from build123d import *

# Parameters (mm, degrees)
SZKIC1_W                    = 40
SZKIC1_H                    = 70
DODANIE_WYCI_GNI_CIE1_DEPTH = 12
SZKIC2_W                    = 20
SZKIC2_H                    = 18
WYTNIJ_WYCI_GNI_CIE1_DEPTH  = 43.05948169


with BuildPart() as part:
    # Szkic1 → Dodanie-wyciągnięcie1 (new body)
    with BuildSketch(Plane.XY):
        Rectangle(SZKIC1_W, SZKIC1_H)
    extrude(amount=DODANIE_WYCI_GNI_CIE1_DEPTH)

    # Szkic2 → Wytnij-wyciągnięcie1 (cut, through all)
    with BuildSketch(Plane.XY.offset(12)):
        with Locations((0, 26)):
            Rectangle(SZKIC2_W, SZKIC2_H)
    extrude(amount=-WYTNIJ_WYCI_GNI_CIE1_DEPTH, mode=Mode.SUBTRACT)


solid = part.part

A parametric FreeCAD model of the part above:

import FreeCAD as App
import Part
import Sketcher

V = App.Vector


def add_polygon(sketch, points):
    """Adds a closed chain of lines whose ends are joined by coincident constraints."""
    first, n = sketch.GeometryCount, len(points)
    for a, b in zip(points, points[1:] + points[:1]):
        sketch.addGeometry(Part.LineSegment(App.Vector(*a, 0), App.Vector(*b, 0)), False)
    for i in range(n):
        sketch.addConstraint(Sketcher.Constraint("Coincident", first + i, 2, first + (i + 1) % n, 1))

doc = App.newDocument("Part")
body = doc.addObject("PartDesign::Body", "Body")

# Sketch on XY plane
sketch1 = body.newObject("Sketcher::SketchObject", "Sketch")
sketch1.AttachmentSupport = (doc.getObject("XY_Plane"), [""])
sketch1.MapMode = "FlatFace"
add_polygon(sketch1, [(-20, 35), (-20, -35), (20, -35), (20, 35)])  # lines 0-3
sketch1.addConstraint([
    Sketcher.Constraint("Vertical", 0),
    Sketcher.Constraint("Horizontal", 1),
    Sketcher.Constraint("Vertical", 2),
    Sketcher.Constraint("Horizontal", 3),
    Sketcher.Constraint("Symmetric", 0, 2, 2, 2, -1, 1),
    Sketcher.Constraint("DistanceX", 1, 1, 1, 2, 40.0),
    Sketcher.Constraint("DistanceY", 0, 2, 0, 1, 70.0),
])
pad1 = body.newObject("PartDesign::Pad", "Pad")
pad1.Profile = sketch1
pad1.Length = 12

# Sketch on XY plane
sketch2 = body.newObject("Sketcher::SketchObject", "Sketch001")
sketch2.AttachmentSupport = (doc.getObject("XY_Plane"), [""])
sketch2.MapMode = "FlatFace"
sketch2.AttachmentOffset = App.Placement(V(0, 0, 12), App.Rotation())
add_polygon(sketch2, [(-10, 35), (-10, 17), (10, 17), (10, 35)])  # lines 0-3
sketch2.addConstraint([
    Sketcher.Constraint("Vertical", 0),
    Sketcher.Constraint("Horizontal", 1),
    Sketcher.Constraint("Vertical", 2),
    Sketcher.Constraint("Horizontal", 3),
    Sketcher.Constraint("DistanceX", 1, 1, 1, 2, 20.0),
    Sketcher.Constraint("DistanceY", 0, 2, 0, 1, 18.0),
    Sketcher.Constraint("DistanceX", 0, 2, -1, 1, 10.0),
    Sketcher.Constraint("DistanceY", -1, 1, 0, 2, 17.0),
])
pocket1 = body.newObject("PartDesign::Pocket", "Pocket")
pocket1.Profile = sketch2
pocket1.Type = "ThroughAll"

doc.recompute()
